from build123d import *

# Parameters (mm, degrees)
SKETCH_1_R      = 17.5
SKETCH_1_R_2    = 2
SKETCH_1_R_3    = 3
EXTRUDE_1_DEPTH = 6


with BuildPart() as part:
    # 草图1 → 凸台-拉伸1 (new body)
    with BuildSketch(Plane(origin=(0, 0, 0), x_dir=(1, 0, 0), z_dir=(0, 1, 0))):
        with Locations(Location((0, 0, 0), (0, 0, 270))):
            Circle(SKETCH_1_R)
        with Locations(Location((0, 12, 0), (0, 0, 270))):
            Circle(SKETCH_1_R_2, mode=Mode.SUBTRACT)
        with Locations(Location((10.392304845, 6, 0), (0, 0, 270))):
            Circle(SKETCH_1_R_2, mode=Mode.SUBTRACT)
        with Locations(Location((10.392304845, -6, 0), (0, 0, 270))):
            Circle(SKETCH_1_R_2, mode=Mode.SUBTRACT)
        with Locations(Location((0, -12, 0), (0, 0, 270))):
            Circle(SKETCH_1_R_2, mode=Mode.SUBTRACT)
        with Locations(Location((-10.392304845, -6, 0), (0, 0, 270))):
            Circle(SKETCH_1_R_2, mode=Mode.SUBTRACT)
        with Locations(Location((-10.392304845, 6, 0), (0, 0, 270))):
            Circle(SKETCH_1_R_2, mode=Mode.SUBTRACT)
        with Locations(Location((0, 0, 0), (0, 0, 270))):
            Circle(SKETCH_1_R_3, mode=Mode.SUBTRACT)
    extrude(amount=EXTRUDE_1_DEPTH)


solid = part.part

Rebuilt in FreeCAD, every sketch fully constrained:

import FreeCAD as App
import Part
import Sketcher
from FreeCAD import Vector
Q = App.Units.Quantity

doc = App.newDocument("Part")
body = doc.addObject("PartDesign::Body", "Body")

sketch1 = body.newObject("Sketcher::SketchObject", "Sketch")
sketch1.AttachmentSupport = (doc.getObject("XZ_Plane"), [""])
sketch1.MapMode = "FlatFace"
sketch1.addGeometry([
    Part.Circle(Vector(0, 0, 0), Vector(0, 0, 1), 17.5),
    Part.Circle(Vector(-10.392305, -6, 0), Vector(0, 0, 1), 2),
    Part.Circle(Vector(0, -12, 0), Vector(0, 0, 1), 2),
    Part.Circle(Vector(-10.392305, 6, 0), Vector(0, 0, 1), 2),
    Part.Circle(Vector(10.392305, -6, 0), Vector(0, 0, 1), 2),
    Part.Circle(Vector(0, 0, 0), Vector(0, 0, 1), 3),
    Part.Circle(Vector(0, 12, 0), Vector(0, 0, 1), 2),
    Part.Circle(Vector(10.392305, 6, 0), Vector(0, 0, 1), 2),
], False)
sketch1.addConstraint([
    Sketcher.Constraint("Coincident", 0, 3, -1, 1),
    Sketcher.Constraint("Coincident", 5, 3, -1, 1),
    Sketcher.Constraint("Equal", 1, 2),
    Sketcher.Constraint("Equal", 2, 3),
    Sketcher.Constraint("Equal", 3, 4),
    Sketcher.Constraint("Equal", 4, 6),
    Sketcher.Constraint("Equal", 6, 7),
    Sketcher.Constraint("Symmetric", 3, 3, 4, 3, -1, 1),
    Sketcher.Constraint("Symmetric", 2, 3, 6, 3, -1, 1),
    Sketcher.Constraint("Symmetric", 1, 3, 7, 3, -1, 1),
    Sketcher.Constraint("Symmetric", 1, 3, 4, 3, -2),
    Sketcher.Constraint("PointOnObject", 2, 3, -2),
    Sketcher.Constraint("Diameter", 0, Q("35 mm")),
    Sketcher.Constraint("Diameter", 1, Q("4 mm")),
    Sketcher.Constraint("Diameter", 5, Q("6 mm")),
    Sketcher.Constraint("DistanceY", 1, 3, -1, 1, Q("6 mm")),
    Sketcher.Constraint("DistanceY", 2, 3, -1, 1, Q("12 mm")),
    Sketcher.Constraint("DistanceX", 1, 3, 4, 3, Q("20.78461 mm")),
])
pad1 = body.newObject("PartDesign::Pad", "Pad")
pad1.Profile = sketch1
pad1.Length = 6
pad1.Reversed = True

doc.recompute()
